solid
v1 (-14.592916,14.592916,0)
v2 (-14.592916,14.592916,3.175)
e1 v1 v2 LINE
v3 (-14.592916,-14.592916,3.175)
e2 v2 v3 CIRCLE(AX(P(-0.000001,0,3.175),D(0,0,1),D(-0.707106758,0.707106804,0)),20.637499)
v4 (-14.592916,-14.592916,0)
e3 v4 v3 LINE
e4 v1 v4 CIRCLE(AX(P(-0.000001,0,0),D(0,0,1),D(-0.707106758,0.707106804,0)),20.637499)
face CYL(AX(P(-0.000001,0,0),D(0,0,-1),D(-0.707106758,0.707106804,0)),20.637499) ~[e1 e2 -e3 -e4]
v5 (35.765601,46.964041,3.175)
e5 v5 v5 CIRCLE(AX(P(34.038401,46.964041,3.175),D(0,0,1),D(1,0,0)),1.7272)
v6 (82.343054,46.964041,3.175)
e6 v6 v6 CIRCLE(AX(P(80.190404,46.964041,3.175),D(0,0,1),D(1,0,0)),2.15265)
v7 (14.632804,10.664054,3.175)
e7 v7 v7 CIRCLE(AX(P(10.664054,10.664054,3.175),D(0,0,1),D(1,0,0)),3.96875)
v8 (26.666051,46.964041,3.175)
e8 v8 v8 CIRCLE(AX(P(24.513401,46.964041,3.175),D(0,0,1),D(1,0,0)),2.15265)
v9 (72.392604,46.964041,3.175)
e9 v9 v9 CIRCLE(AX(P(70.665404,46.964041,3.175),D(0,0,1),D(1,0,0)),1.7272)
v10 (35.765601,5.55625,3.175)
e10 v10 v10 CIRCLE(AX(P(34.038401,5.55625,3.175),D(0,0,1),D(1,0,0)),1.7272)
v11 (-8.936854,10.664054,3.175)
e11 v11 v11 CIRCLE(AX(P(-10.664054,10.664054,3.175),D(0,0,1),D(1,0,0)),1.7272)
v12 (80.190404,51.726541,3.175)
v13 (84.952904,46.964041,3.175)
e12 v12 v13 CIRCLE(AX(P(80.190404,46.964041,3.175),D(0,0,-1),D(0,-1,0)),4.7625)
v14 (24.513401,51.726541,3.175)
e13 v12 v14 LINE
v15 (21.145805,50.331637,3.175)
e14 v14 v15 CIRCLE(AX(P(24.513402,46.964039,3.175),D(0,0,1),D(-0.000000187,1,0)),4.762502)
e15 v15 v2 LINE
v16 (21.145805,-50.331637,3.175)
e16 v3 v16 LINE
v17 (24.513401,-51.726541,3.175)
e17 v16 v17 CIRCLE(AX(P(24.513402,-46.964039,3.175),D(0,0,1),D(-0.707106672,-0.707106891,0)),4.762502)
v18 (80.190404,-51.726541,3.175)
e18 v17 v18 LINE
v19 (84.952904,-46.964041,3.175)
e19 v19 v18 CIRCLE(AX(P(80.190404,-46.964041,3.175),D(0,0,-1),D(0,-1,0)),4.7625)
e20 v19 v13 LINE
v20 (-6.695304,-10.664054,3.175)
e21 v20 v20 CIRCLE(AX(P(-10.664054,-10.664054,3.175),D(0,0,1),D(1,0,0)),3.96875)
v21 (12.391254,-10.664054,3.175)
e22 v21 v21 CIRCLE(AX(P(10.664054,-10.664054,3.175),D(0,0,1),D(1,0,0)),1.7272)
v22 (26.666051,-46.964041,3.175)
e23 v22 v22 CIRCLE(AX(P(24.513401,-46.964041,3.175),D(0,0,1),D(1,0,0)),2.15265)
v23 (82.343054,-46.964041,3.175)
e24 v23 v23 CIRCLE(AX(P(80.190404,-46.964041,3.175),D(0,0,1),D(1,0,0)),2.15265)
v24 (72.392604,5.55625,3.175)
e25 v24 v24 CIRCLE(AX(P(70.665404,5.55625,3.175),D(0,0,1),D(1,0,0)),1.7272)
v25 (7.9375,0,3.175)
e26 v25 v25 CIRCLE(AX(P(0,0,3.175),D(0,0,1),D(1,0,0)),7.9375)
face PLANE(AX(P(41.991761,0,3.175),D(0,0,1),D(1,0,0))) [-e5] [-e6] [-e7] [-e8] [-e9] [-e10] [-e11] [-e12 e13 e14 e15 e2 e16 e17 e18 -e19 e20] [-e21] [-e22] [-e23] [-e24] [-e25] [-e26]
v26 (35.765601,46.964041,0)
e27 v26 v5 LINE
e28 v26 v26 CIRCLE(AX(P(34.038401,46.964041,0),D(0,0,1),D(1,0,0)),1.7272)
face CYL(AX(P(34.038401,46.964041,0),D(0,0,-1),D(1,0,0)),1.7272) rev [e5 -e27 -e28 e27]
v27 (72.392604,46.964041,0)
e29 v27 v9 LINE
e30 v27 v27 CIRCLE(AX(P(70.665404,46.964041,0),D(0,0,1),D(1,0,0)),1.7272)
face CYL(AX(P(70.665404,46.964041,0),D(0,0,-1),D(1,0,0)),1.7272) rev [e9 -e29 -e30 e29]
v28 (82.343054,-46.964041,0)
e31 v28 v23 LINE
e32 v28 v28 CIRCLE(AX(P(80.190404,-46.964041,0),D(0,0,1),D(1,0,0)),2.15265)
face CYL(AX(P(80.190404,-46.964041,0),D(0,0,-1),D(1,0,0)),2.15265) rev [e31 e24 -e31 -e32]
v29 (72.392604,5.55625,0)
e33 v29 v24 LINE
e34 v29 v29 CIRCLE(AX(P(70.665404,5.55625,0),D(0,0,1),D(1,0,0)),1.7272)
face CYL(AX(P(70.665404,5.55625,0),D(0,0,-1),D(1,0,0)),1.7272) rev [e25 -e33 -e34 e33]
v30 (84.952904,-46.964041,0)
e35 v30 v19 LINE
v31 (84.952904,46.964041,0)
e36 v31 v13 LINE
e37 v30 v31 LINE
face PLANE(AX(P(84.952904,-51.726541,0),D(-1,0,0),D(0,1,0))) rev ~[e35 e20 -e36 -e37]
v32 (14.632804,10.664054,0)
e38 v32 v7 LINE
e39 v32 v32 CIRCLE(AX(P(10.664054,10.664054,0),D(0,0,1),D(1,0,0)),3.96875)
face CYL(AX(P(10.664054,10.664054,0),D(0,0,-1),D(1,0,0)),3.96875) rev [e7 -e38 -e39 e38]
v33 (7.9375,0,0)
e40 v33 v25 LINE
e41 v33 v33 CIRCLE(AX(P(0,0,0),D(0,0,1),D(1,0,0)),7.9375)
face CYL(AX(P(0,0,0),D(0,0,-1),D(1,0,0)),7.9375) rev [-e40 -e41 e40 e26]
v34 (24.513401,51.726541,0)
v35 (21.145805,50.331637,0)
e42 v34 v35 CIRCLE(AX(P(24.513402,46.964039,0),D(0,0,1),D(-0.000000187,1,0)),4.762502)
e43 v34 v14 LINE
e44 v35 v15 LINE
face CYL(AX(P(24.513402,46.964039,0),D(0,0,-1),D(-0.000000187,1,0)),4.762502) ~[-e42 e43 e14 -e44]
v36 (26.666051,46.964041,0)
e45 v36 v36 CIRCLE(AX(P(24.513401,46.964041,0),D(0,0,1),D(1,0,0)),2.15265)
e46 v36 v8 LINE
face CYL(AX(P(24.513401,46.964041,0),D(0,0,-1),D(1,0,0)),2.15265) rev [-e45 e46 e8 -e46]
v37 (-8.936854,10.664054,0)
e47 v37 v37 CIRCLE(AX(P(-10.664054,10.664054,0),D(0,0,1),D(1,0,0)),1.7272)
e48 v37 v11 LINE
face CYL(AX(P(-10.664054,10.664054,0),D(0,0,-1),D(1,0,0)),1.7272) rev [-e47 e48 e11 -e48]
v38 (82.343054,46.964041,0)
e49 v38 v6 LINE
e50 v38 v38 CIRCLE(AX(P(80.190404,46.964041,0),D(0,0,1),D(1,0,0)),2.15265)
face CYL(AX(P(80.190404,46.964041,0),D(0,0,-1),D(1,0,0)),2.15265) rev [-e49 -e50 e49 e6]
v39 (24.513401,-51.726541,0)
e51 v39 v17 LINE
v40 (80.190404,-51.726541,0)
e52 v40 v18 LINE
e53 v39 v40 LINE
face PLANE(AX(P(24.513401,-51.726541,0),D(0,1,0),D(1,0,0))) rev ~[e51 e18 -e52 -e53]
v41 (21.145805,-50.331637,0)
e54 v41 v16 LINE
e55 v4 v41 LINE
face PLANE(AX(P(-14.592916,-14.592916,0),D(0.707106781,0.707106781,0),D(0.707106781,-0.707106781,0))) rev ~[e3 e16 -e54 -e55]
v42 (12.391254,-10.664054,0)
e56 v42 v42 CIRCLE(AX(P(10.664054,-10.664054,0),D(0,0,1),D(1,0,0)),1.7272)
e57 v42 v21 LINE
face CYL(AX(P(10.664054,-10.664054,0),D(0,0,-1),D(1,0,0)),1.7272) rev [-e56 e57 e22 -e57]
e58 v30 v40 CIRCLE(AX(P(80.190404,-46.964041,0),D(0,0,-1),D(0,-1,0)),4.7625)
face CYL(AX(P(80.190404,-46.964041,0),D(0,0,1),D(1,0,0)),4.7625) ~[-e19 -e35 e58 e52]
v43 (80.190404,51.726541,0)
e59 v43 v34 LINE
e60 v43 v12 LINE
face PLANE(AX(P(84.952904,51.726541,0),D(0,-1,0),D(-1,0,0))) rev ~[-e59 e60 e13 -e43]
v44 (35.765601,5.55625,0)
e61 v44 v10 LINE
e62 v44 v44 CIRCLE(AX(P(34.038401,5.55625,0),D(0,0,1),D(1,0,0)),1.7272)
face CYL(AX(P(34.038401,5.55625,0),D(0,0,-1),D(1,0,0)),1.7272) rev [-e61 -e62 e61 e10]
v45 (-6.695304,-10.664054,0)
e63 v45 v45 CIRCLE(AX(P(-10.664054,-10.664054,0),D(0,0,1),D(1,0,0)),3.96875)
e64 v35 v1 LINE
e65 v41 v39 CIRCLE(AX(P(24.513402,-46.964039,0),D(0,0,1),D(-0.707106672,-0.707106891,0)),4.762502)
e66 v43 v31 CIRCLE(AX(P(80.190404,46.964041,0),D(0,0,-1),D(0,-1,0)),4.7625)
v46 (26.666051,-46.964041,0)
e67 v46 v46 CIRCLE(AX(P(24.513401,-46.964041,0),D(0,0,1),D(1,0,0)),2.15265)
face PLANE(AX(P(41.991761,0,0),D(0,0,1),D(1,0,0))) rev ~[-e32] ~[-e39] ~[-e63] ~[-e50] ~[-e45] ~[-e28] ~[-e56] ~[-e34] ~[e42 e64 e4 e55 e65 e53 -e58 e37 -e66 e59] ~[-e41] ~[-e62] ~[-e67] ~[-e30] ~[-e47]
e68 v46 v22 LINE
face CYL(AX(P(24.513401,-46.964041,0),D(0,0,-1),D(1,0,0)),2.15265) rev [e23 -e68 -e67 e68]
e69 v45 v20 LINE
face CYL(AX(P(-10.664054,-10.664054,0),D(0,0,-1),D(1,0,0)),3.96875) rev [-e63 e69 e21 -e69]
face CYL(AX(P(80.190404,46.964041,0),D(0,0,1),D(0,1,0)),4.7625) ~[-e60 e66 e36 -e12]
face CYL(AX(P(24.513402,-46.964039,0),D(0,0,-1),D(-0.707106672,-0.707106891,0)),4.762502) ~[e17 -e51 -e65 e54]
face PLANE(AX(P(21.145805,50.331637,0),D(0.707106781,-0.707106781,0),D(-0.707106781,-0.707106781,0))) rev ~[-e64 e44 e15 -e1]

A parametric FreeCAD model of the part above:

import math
import FreeCAD as App
import Part
import Sketcher

V = App.Vector
Q = App.Units.Quantity


def edges_at(feature, points):
    """Names of the edges that pass closest to the given points."""
    edges = feature.Shape.Edges
    near = lambda p: min(range(len(edges)), key=lambda i: edges[i].distToShape(Part.Vertex(*p))[0])
    return sorted({f"Edge{near(p) + 1}" for p in points})

doc = App.newDocument("Part")
body = doc.addObject("PartDesign::Body", "Body")

sketch1 = doc.addObject("Sketcher::SketchObject", "Sketch")
body.addObject(sketch1)
sketch1.AttachmentSupport = (doc.XY_Plane, [""])
sketch1.MapMode = "FlatFace"
sketch1.addGeometry(Part.LineSegment(V(21.1, 50.3, 0), V(-14.6, 14.6, 0)), False)
sketch1.addGeometry(Part.ArcOfCircle(Part.Circle(V(0, 0, 0), V(0, 0, 1), 20.6), math.radians(135), math.radians(225)), False)
sketch1.addGeometry(Part.LineSegment(V(-14.6, -14.6, 0), V(21.1, -50.3, 0)), False)
sketch1.addGeometry(Part.ArcOfCircle(Part.Circle(V(24.5, -47, 0), V(0, 0, 1), 4.8), math.radians(-135), math.radians(-90)), False)
sketch1.addGeometry(Part.LineSegment(V(24.5, -51.7, 0), V(85, -51.7, 0)), False)
sketch1.addGeometry(Part.LineSegment(V(85, -51.7, 0), V(85, 51.7, 0)), False)
sketch1.addGeometry(Part.LineSegment(V(85, 51.7, 0), V(24.5, 51.7, 0)), False)
sketch1.addGeometry(Part.ArcOfCircle(Part.Circle(V(24.5, 47, 0), V(0, 0, 1), 4.8), math.radians(90), math.radians(135)), False)
sketch1.addGeometry(Part.Circle(V(24.5, -47, 0), V(0, 0, 1), 2.2), False)
sketch1.addGeometry(Part.Circle(V(-10.7, -10.7, 0), V(0, 0, 1), 4), False)
sketch1.addGeometry(Part.Circle(V(10.7, -10.7, 0), V(0, 0, 1), 1.7), False)
sketch1.addGeometry(Part.Circle(V(80.2, -47, 0), V(0, 0, 1), 2.2), False)
sketch1.addGeometry(Part.Circle(V(-10.7, 10.7, 0), V(0, 0, 1), 1.7), False)
sketch1.addGeometry(Part.Circle(V(0, 0, 0), V(0, 0, 1), 7.9), False)
sketch1.addGeometry(Part.Circle(V(10.7, 10.7, 0), V(0, 0, 1), 4), False)
sketch1.addGeometry(Part.Circle(V(24.5, 47, 0), V(0, 0, 1), 2.2), False)
sketch1.addGeometry(Part.Circle(V(34, 5.6, 0), V(0, 0, 1), 1.7), False)
sketch1.addGeometry(Part.Circle(V(70.7, 5.6, 0), V(0, 0, 1), 1.7), False)
sketch1.addGeometry(Part.Circle(V(34, 47, 0), V(0, 0, 1), 1.7), False)
sketch1.addGeometry(Part.Circle(V(70.7, 47, 0), V(0, 0, 1), 1.7), False)
sketch1.addGeometry(Part.Circle(V(80.2, 47, 0), V(0, 0, 1), 2.2), False)
sketch1.addConstraint(Sketcher.Constraint("Tangent", 0, 2, 1, 1))
sketch1.addConstraint(Sketcher.Constraint("Tangent", 1, 2, 2, 1))
sketch1.addConstraint(Sketcher.Constraint("Tangent", 2, 2, 3, 1))
sketch1.addConstraint(Sketcher.Constraint("Tangent", 3, 2, 4, 1))
sketch1.addConstraint(Sketcher.Constraint("Coincident", 4, 2, 5, 1))
sketch1.addConstraint(Sketcher.Constraint("Coincident", 5, 2, 6, 1))
sketch1.addConstraint(Sketcher.Constraint("Tangent", 6, 2, 7, 1))
sketch1.addConstraint(Sketcher.Constraint("Tangent", 7, 2, 0, 1))
sketch1.addConstraint(Sketcher.Constraint("Horizontal", 4))
sketch1.addConstraint(Sketcher.Constraint("Vertical", 5))
sketch1.addConstraint(Sketcher.Constraint("Horizontal", 6))
sketch1.addConstraint(Sketcher.Constraint("Coincident", 1, 3, -1, 1))
sketch1.addConstraint(Sketcher.Constraint("Coincident", 13, 3, -1, 1))
sketch1.addConstraint(Sketcher.Constraint("Coincident", 8, 3, 3, 3))
sketch1.addConstraint(Sketcher.Constraint("Coincident", 15, 3, 7, 3))
sketch1.addConstraint(Sketcher.Constraint("Equal", 3, 7))
sketch1.addConstraint(Sketcher.Constraint("Equal", 8, 11))
sketch1.addConstraint(Sketcher.Constraint("Equal", 10, 12))
sketch1.addConstraint(Sketcher.Constraint("Equal", 9, 14))
sketch1.addConstraint(Sketcher.Constraint("Equal", 11, 15))
sketch1.addConstraint(Sketcher.Constraint("Equal", 12, 16))
sketch1.addConstraint(Sketcher.Constraint("Equal", 16, 17))
sketch1.addConstraint(Sketcher.Constraint("Equal", 17, 18))
sketch1.addConstraint(Sketcher.Constraint("Equal", 18, 19))
sketch1.addConstraint(Sketcher.Constraint("Equal", 15, 20))
sketch1.addConstraint(Sketcher.Constraint("Symmetric", 10, 3, 12, 3, -1, 1))
sketch1.addConstraint(Sketcher.Constraint("Symmetric", 9, 3, 14, 3, -1, 1))
sketch1.addConstraint(Sketcher.Constraint("Symmetric", 9, 3, 10, 3, -2))
sketch1.addConstraint(Sketcher.Constraint("Symmetric", 3, 3, 7, 3, -1))
sketch1.addConstraint(Sketcher.Constraint("Symmetric", 11, 3, 20, 3, -1))
sketch1.addConstraint(Sketcher.Constraint("Perpendicular", 0, 2))
sketch1.addConstraint(Sketcher.Constraint("Horizontal", 8, 3, 11, 3))
sketch1.addConstraint(Sketcher.Constraint("Horizontal", 16, 3, 17, 3))
sketch1.addConstraint(Sketcher.Constraint("Horizontal", 15, 3, 18, 3))
sketch1.addConstraint(Sketcher.Constraint("Horizontal", 18, 3, 19, 3))
sketch1.addConstraint(Sketcher.Constraint("Vertical", 16, 3, 18, 3))
sketch1.addConstraint(Sketcher.Constraint("Vertical", 17, 3, 19, 3))
sketch1.addConstraint(Sketcher.Constraint("Diameter", 9, Q("0.3125 in")))
sketch1.addConstraint(Sketcher.Constraint("Diameter", 10, Q("0.136 in")))
sketch1.addConstraint(Sketcher.Constraint("Diameter", 13, Q("0.625 in")))
sketch1.addConstraint(Sketcher.Constraint("Radius", 1, Q("0.8125 in")))
sketch1.addConstraint(Sketcher.Constraint("Radius", 3, Q("0.1875001 in")))
sketch1.addConstraint(Sketcher.Constraint("Diameter", 8, Q("0.1695 in")))
sketch1.addConstraint(Sketcher.Constraint("DistanceY", -1, 1, 16, 3, Q("0.21875 in")))
sketch1.addConstraint(Sketcher.Constraint("DistanceX", 7, 3, 16, 3, Q("0.375 in")))
sketch1.addConstraint(Sketcher.Constraint("DistanceX", 17, 3, 11, 3, Q("0.375 in")))
sketch1.addConstraint(Sketcher.Constraint("DistanceX", 11, 3, 4, 2, Q("0.1875 in")))
sketch1.addConstraint(Sketcher.Constraint("DistanceY", 5, 1, 5, 2, Q("103.453082 mm")))
sketch1.addConstraint(Sketcher.Constraint("DistanceX", 4, 1, 4, 2, Q("60.439503 mm")))
sketch1.addConstraint(Sketcher.Constraint("DistanceX", 9, 3, 10, 3, Q("21.328108 mm")))
sketch1.addConstraint(Sketcher.Constraint("DistanceY", 9, 3, 12, 3, Q("21.328108 mm")))
pad1 = doc.addObject("PartDesign::Pad", "Pad")
body.addObject(pad1)
pad1.Profile = sketch1
pad1.Length = Q("0.125 in")
doc.recompute()

fillet = doc.addObject("PartDesign::Fillet", "Fillet")
body.addObject(fillet)
fillet.Base = (pad1, edges_at(pad1, [(84.953, 51.727, 1.587), (84.953, -51.727, 1.587)]))
fillet.Radius = Q("0.1875 in")

doc.recompute()
